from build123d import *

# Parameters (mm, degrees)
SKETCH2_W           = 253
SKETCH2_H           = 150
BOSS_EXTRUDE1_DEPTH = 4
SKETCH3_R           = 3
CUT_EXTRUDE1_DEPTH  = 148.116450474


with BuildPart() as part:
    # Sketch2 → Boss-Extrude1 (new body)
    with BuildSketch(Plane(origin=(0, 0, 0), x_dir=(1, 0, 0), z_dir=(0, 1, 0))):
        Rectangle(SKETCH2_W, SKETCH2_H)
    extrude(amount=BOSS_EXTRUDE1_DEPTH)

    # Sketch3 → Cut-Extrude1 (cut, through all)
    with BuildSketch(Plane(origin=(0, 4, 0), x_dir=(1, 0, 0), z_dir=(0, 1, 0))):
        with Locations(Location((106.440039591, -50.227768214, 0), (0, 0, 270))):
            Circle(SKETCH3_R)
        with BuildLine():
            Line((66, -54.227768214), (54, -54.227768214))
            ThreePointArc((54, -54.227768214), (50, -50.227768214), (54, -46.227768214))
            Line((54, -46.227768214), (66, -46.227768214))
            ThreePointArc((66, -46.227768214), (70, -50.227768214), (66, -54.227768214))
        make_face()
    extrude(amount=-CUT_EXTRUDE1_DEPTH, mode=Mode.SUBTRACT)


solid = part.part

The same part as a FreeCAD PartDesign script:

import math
import FreeCAD as App
import Part
import Sketcher
Q = App.Units.Quantity


def add_polygon(sketch, points):
    """Adds a closed chain of lines whose ends are joined by coincident constraints."""
    first, n = sketch.GeometryCount, len(points)
    for a, b in zip(points, points[1:] + points[:1]):
        sketch.addGeometry(Part.LineSegment(App.Vector(*a, 0), App.Vector(*b, 0)), False)
    for i in range(n):
        sketch.addConstraint(Sketcher.Constraint("Coincident", first + i, 2, first + (i + 1) % n, 1))

doc = App.newDocument("Part")
body = doc.addObject("PartDesign::Body", "Body")

sketch1 = doc.addObject("Sketcher::SketchObject", "Sketch")
body.addObject(sketch1)
sketch1.AttachmentSupport = (doc.XZ_Plane, [""])
sketch1.MapMode = "FlatFace"
add_polygon(sketch1, [(-126.5, -75), (-126.5, 75), (126.5, 75), (126.5, -75)])
sketch1.addConstraint([
    Sketcher.Constraint("Vertical", 0),
    Sketcher.Constraint("Horizontal", 1),
    Sketcher.Constraint("Vertical", 2),
    Sketcher.Constraint("Horizontal", 3),
    Sketcher.Constraint("Symmetric", 0, 2, 2, 2, -1, 1),
    Sketcher.Constraint("DistanceX", 1, 1, 1, 2, Q("253 mm")),
    Sketcher.Constraint("DistanceY", 0, 1, 0, 2, Q("150 mm")),
])
pad1 = doc.addObject("PartDesign::Pad", "Pad")
body.addObject(pad1)
pad1.Profile = sketch1
pad1.Length = 4
pad1.Reversed = True

sketch2 = doc.addObject("Sketcher::SketchObject", "Sketch001")
body.addObject(sketch2)
sketch2.AttachmentSupport = (doc.XZ_Plane, [""])
sketch2.MapMode = "FlatFace"
sketch2.AttachmentOffset = App.Placement(App.Vector(0, 0, -4), App.Rotation())
sketch2.addGeometry([
    Part.Circle(App.Vector(106.44004, 50.227768, 0), App.Vector(0, 0, 1), 3),
    Part.LineSegment(App.Vector(54, 54.227768, 0), App.Vector(66, 54.227768, 0)),
    Part.ArcOfCircle(Part.Circle(App.Vector(66, 50.227768, 0), App.Vector(0, 0, 1), 4), math.radians(-90), math.radians(90)),
    Part.LineSegment(App.Vector(66, 46.227768, 0), App.Vector(54, 46.227768, 0)),
    Part.ArcOfCircle(Part.Circle(App.Vector(54, 50.227768, 0), App.Vector(0, 0, 1), 4), math.radians(90), math.radians(270)),
], False)
sketch2.addConstraint([
    Sketcher.Constraint("Tangent", 1, 2, 2, 2),
    Sketcher.Constraint("Tangent", 2, 1, 3, 1),
    Sketcher.Constraint("Tangent", 3, 2, 4, 2),
    Sketcher.Constraint("Tangent", 4, 1, 1, 1),
    Sketcher.Constraint("Horizontal", 1),
    Sketcher.Constraint("Horizontal", 3),
    Sketcher.Constraint("Horizontal", 0, 3, 2, 3),
    Sketcher.Constraint("Diameter", 0, Q("6 mm")),
    Sketcher.Constraint("Radius", 2, Q("4 mm")),
    Sketcher.Constraint("DistanceX", 1, 1, 1, 2, Q("12 mm")),
    Sketcher.Constraint("DistanceX", -1, 1, 2, 3, Q("66 mm")),
    Sketcher.Constraint("DistanceX", -1, 1, 0, 3, Q("106.44004 mm")),
    Sketcher.Constraint("DistanceY", -1, 1, 0, 3, Q("50.227768 mm")),
])
pocket1 = doc.addObject("PartDesign::Pocket", "Pocket")
body.addObject(pocket1)
pocket1.Profile = sketch2
pocket1.Type = "ThroughAll"
pocket1.Reversed = True

doc.recompute()
